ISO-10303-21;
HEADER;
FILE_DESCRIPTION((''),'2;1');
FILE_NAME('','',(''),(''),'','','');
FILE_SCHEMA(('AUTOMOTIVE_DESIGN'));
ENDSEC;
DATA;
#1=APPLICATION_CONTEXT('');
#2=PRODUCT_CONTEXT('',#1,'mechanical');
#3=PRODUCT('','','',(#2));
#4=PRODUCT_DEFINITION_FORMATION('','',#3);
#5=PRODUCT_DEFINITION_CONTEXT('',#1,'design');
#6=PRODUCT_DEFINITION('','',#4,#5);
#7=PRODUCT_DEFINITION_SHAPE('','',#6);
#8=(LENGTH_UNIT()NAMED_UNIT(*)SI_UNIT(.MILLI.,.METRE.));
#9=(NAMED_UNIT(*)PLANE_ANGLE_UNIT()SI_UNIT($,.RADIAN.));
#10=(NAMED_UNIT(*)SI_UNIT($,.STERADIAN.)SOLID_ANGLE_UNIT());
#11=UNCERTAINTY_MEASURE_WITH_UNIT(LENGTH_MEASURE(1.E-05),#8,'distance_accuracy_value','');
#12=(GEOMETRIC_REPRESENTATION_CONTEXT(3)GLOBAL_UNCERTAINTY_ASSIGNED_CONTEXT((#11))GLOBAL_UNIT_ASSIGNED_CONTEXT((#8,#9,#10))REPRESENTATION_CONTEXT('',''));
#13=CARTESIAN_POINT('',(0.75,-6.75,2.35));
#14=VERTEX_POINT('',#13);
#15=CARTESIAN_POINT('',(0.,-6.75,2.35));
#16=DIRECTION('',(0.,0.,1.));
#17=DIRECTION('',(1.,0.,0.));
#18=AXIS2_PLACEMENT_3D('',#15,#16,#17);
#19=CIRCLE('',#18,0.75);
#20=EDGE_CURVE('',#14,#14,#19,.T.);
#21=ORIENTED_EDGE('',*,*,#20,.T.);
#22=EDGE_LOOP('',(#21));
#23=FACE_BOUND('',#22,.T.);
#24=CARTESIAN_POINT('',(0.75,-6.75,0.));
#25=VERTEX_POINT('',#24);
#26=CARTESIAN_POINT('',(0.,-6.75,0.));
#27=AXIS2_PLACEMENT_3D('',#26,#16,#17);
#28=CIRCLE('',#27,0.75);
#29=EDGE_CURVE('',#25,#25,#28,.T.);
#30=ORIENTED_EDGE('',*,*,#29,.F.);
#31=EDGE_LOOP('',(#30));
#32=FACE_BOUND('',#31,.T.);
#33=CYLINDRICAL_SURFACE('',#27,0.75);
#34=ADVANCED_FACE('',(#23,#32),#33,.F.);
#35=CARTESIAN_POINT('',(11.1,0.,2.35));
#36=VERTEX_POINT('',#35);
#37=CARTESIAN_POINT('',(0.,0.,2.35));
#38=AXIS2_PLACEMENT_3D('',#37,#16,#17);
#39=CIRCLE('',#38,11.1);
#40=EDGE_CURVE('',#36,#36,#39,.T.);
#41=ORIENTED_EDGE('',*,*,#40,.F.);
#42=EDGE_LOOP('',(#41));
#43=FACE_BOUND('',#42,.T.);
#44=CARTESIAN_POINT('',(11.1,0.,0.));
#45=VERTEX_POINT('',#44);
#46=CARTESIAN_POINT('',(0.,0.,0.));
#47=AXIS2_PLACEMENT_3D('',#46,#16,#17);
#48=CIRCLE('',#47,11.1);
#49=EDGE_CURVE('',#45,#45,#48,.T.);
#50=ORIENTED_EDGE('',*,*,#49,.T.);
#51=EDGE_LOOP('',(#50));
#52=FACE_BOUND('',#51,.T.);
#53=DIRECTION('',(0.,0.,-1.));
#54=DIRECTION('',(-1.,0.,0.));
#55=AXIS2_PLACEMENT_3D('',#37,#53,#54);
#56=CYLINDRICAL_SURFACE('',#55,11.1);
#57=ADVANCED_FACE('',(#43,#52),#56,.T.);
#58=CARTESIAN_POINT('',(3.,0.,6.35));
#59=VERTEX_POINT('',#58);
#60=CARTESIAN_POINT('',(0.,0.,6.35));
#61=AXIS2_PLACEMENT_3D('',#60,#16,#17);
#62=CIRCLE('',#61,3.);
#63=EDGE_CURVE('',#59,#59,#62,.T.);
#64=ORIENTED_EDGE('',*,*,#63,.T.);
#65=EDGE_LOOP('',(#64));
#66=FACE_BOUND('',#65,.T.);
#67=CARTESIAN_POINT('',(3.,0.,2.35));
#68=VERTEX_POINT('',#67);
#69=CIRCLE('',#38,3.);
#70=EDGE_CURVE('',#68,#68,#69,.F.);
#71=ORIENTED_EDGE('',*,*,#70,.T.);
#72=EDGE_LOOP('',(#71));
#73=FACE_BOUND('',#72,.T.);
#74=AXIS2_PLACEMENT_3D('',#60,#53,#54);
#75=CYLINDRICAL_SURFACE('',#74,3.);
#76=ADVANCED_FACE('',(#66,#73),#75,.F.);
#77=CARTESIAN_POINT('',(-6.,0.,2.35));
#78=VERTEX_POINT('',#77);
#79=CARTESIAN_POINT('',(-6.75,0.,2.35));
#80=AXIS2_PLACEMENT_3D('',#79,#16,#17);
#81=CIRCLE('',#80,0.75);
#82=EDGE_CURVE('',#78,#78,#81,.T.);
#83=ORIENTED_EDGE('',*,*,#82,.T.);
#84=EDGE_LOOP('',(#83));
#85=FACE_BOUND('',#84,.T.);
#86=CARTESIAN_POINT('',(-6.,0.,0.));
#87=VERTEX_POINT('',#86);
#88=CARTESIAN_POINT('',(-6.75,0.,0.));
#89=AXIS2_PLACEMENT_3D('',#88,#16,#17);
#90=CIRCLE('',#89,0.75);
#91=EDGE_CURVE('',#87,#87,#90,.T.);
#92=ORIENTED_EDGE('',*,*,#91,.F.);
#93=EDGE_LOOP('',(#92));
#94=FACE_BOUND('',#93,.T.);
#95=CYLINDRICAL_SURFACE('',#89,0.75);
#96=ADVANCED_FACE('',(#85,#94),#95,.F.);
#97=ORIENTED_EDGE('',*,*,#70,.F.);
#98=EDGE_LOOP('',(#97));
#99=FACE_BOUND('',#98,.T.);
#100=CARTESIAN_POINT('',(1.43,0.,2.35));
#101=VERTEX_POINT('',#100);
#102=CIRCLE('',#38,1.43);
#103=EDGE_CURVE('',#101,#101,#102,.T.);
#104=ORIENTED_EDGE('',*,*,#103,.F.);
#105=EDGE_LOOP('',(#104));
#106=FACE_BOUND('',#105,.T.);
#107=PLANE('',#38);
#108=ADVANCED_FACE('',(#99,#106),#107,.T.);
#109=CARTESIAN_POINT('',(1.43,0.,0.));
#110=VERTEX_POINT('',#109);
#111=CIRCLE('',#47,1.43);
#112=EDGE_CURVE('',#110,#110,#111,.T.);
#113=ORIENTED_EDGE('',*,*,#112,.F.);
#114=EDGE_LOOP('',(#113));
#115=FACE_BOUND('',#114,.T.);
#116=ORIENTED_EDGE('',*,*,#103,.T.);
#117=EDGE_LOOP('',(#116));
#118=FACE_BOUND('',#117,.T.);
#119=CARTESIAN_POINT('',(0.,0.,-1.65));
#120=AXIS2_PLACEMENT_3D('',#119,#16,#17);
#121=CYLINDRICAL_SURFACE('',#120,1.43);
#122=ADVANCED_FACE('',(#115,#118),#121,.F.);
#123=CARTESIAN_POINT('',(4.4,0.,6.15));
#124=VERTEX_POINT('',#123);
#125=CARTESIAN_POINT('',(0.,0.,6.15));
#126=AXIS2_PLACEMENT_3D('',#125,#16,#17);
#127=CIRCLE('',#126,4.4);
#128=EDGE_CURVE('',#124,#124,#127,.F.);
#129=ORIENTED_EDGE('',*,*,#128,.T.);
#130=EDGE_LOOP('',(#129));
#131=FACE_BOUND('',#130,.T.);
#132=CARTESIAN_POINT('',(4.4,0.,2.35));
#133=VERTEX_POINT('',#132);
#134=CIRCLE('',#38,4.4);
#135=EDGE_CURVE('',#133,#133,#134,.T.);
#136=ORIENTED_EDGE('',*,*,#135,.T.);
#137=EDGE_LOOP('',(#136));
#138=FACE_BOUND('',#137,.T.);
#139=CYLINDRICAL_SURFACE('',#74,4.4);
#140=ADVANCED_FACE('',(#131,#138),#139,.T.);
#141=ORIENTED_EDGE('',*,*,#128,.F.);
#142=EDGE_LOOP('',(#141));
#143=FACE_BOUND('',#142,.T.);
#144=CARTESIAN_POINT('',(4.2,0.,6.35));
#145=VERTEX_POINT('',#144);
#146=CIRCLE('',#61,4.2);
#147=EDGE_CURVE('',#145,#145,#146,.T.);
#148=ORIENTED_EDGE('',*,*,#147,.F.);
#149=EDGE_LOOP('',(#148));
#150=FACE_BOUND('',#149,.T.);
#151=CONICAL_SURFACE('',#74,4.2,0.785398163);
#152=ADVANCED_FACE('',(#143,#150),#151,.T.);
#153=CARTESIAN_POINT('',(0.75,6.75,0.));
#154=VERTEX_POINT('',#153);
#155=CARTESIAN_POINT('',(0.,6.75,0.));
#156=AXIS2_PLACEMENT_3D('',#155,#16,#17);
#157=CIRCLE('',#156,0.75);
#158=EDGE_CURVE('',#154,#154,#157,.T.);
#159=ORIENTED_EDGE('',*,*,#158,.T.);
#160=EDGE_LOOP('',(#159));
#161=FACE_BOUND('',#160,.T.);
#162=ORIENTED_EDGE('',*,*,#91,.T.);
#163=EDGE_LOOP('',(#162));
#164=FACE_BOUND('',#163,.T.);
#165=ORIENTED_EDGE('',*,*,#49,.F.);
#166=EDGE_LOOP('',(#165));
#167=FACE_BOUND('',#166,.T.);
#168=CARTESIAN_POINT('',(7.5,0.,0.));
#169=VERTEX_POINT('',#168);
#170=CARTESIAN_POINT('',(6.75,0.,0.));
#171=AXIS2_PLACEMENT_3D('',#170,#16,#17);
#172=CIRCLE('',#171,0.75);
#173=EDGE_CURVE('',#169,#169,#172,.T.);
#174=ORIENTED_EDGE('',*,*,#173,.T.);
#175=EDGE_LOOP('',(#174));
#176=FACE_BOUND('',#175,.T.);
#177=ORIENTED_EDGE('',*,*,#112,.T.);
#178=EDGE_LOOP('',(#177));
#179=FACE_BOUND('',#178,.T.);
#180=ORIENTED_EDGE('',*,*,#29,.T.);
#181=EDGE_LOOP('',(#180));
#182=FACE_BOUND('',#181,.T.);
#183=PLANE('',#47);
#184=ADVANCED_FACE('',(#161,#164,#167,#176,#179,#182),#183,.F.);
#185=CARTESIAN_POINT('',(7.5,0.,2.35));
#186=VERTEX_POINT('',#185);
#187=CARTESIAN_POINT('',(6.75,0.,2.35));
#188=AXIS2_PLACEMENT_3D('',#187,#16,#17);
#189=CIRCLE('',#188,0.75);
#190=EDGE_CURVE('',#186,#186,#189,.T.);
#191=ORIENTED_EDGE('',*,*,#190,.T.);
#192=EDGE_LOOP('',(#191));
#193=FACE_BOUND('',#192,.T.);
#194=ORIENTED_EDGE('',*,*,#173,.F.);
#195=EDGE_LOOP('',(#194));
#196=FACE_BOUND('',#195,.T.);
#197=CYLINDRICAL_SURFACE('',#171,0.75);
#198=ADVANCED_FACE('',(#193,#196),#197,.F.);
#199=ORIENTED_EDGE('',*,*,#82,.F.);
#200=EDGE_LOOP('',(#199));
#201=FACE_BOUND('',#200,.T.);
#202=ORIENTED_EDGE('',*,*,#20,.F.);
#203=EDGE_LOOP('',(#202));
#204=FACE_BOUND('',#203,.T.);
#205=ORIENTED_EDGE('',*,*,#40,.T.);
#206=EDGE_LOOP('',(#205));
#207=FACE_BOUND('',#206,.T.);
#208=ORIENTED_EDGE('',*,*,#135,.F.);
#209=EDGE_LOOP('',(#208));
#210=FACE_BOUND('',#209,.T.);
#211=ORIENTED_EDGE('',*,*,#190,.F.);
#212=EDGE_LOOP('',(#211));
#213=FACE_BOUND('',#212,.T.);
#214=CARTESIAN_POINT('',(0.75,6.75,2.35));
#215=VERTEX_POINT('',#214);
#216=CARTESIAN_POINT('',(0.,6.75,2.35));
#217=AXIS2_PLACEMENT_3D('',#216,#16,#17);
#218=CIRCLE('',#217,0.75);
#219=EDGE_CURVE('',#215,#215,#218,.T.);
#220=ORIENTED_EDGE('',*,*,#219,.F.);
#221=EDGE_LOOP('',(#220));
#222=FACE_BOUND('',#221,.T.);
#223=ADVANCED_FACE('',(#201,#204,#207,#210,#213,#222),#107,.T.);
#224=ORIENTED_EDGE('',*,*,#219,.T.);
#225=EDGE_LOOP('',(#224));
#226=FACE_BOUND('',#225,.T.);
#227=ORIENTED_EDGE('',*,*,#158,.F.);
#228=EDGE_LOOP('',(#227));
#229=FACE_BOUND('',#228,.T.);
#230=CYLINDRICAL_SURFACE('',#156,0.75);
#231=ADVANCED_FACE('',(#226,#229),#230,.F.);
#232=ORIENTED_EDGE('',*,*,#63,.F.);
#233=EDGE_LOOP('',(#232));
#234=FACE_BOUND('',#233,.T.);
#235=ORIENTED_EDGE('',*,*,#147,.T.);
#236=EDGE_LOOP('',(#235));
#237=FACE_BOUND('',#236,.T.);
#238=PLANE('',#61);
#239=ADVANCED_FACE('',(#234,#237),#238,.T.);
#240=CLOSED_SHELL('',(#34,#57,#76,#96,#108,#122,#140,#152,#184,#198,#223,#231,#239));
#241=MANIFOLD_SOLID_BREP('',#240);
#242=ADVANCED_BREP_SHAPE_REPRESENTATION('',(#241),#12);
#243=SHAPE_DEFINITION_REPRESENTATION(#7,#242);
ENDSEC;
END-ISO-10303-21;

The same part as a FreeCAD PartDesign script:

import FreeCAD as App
import Part
import Sketcher

V = App.Vector


def edges_at(feature, points):
    """Names of the edges that pass closest to the given points."""
    edges = feature.Shape.Edges
    near = lambda p: min(range(len(edges)), key=lambda i: edges[i].distToShape(Part.Vertex(*p))[0])
    return sorted({f"Edge{near(p) + 1}" for p in points})

doc = App.newDocument("Part")
body = doc.addObject("PartDesign::Body", "Body")

# Sketch on XY plane
sketch1 = body.newObject("Sketcher::SketchObject", "Sketch")
sketch1.AttachmentSupport = (doc.getObject("XY_Plane"), [""])
sketch1.MapMode = "FlatFace"
sketch1.addGeometry([
    Part.Circle(V(0, 0, 0), V(0, 0, 1), 11.1),
    Part.Circle(V(0, -6.8, 0), V(0, 0, 1), 1.5),
    Part.Circle(V(0, 6.8, 0), V(0, 0, 1), 1.5),
], False)
sketch1.addConstraint([
    Sketcher.Constraint("Coincident", 0, 3, -1, 1),
    Sketcher.Constraint("Equal", 1, 2),
    Sketcher.Constraint("Symmetric", 1, 3, 2, 3, -1, 1),
    Sketcher.Constraint("PointOnObject", 1, 3, -2),
    Sketcher.Constraint("Diameter", 1, 3.0),
    Sketcher.Constraint("Diameter", 0, 22.2),
    Sketcher.Constraint("DistanceY", 1, 3, 2, 3, 13.5),
])
pad1 = body.newObject("PartDesign::Pad", "Pad")
pad1.Profile = sketch1
pad1.Length = 2.35

# Sketch on XY plane
sketch2 = body.newObject("Sketcher::SketchObject", "Sketch001")
sketch2.AttachmentSupport = (doc.getObject("XY_Plane"), [""])
sketch2.MapMode = "FlatFace"
sketch2.AttachmentOffset = App.Placement(V(0, 0, 2.35), App.Rotation())
sketch2.addGeometry([
    Part.Circle(V(0, 0, 0), V(0, 0, 1), 4.4),
    Part.Circle(V(0, 0, 0), V(0, 0, 1), 3),
], False)
sketch2.addConstraint([
    Sketcher.Constraint("Coincident", 0, 3, -1, 1),
    Sketcher.Constraint("Coincident", 1, 3, -1, 1),
    Sketcher.Constraint("Diameter", 1, 6.0),
    Sketcher.Constraint("Diameter", 0, 8.8),
])
pad2 = body.newObject("PartDesign::Pad", "Pad001")
pad2.Profile = sketch2
pad2.Length = 4

# Sketch on XY plane
sketch3 = body.newObject("Sketcher::SketchObject", "Sketch002")
sketch3.AttachmentSupport = (doc.getObject("XY_Plane"), [""])
sketch3.MapMode = "FlatFace"
sketch3.AttachmentOffset = App.Placement(V(0, 0, 2.35), App.Rotation())
sketch3.addGeometry(Part.Circle(V(0, 0, 0), V(0, 0, 1), 1.4), False)
sketch3.addConstraint([
    Sketcher.Constraint("Coincident", 0, 3, -1, 1),
    Sketcher.Constraint("Diameter", 0, 2.86),
])
pocket1 = body.newObject("PartDesign::Pocket", "Pocket")
pocket1.Profile = sketch3
pocket1.Length = 4
doc.recompute()

chamfer = body.newObject("PartDesign::Chamfer", "Chamfer")
chamfer.Base = (pocket1, edges_at(pocket1, [(-4.4, 0, 6.35)]))
chamfer.Size = 0.2

# Sketch on XY plane
sketch4 = body.newObject("Sketcher::SketchObject", "Sketch003")
sketch4.AttachmentSupport = (doc.getObject("XY_Plane"), [""])
sketch4.MapMode = "FlatFace"
sketch4.addGeometry([
    Part.Circle(V(6.8, 0, 0), V(0, 0, 1), 1.5),
    Part.Circle(V(-6.8, 0, 0), V(0, 0, 1), 1.5),
], False)
sketch4.addConstraint([
    Sketcher.Constraint("Equal", 0, 1),
    Sketcher.Constraint("Symmetric", 0, 3, 1, 3, -1, 1),
    Sketcher.Constraint("PointOnObject", 0, 3, -1),
    Sketcher.Constraint("Diameter", 0, 3.0),
    Sketcher.Constraint("DistanceX", 1, 3, 0, 3, 13.5),
])
pocket2 = body.newObject("PartDesign::Pocket", "Pocket001")
pocket2.Profile = sketch4
pocket2.Length = 4
pocket2.Reversed = True

# Sketch on XY plane
sketch5 = body.newObject("Sketcher::SketchObject", "Sketch004")
sketch5.AttachmentSupport = (doc.getObject("XY_Plane"), [""])
sketch5.MapMode = "FlatFace"
sketch5.addGeometry([
    Part.Circle(V(-6.8, 0, 0), V(0, 0, 1), 1.5),  # 0
    Part.Circle(V(-6.8, 0, 0), V(0, 0, 1), 0.8),  # 1
    Part.Circle(V(0, -6.8, 0), V(0, 0, 1), 1.5),  # 2
    Part.Circle(V(0, -6.8, 0), V(0, 0, 1), 0.8),  # 3
    Part.Circle(V(6.8, 0, 0), V(0, 0, 1), 1.5),  # 4
    Part.Circle(V(6.8, 0, 0), V(0, 0, 1), 0.8),  # 5
    Part.Circle(V(0, 6.8, 0), V(0, 0, 1), 1.5),  # 6
    Part.Circle(V(0, 6.8, 0), V(0, 0, 1), 0.8),  # 7
], False)
sketch5.addConstraint([
    Sketcher.Constraint("Coincident", 1, 3, 0, 3),
    Sketcher.Constraint("Coincident", 3, 3, 2, 3),
    Sketcher.Constraint("Coincident", 5, 3, 4, 3),
    Sketcher.Constraint("Coincident", 7, 3, 6, 3),
    Sketcher.Constraint("Equal", 0, 2),
    Sketcher.Constraint("Equal", 1, 3),
    Sketcher.Constraint("Equal", 2, 4),
    Sketcher.Constraint("Equal", 3, 5),
    Sketcher.Constraint("Equal", 4, 6),
    Sketcher.Constraint("Equal", 5, 7),
    Sketcher.Constraint("Symmetric", 0, 3, 4, 3, -1, 1),
    Sketcher.Constraint("Symmetric", 2, 3, 6, 3, -1, 1),
    Sketcher.Constraint("PointOnObject", 0, 3, -1),
    Sketcher.Constraint("PointOnObject", 2, 3, -2),
    Sketcher.Constraint("Diameter", 0, 3.0),
    Sketcher.Constraint("Diameter", 1, 1.5),
    Sketcher.Constraint("DistanceX", 0, 3, 4, 3, 13.5),
    Sketcher.Constraint("DistanceY", 2, 3, 6, 3, 13.5),
])
pad3 = body.newObject("PartDesign::Pad", "Pad002")
pad3.Profile = sketch5
pad3.Length = 2.35

doc.recompute()
